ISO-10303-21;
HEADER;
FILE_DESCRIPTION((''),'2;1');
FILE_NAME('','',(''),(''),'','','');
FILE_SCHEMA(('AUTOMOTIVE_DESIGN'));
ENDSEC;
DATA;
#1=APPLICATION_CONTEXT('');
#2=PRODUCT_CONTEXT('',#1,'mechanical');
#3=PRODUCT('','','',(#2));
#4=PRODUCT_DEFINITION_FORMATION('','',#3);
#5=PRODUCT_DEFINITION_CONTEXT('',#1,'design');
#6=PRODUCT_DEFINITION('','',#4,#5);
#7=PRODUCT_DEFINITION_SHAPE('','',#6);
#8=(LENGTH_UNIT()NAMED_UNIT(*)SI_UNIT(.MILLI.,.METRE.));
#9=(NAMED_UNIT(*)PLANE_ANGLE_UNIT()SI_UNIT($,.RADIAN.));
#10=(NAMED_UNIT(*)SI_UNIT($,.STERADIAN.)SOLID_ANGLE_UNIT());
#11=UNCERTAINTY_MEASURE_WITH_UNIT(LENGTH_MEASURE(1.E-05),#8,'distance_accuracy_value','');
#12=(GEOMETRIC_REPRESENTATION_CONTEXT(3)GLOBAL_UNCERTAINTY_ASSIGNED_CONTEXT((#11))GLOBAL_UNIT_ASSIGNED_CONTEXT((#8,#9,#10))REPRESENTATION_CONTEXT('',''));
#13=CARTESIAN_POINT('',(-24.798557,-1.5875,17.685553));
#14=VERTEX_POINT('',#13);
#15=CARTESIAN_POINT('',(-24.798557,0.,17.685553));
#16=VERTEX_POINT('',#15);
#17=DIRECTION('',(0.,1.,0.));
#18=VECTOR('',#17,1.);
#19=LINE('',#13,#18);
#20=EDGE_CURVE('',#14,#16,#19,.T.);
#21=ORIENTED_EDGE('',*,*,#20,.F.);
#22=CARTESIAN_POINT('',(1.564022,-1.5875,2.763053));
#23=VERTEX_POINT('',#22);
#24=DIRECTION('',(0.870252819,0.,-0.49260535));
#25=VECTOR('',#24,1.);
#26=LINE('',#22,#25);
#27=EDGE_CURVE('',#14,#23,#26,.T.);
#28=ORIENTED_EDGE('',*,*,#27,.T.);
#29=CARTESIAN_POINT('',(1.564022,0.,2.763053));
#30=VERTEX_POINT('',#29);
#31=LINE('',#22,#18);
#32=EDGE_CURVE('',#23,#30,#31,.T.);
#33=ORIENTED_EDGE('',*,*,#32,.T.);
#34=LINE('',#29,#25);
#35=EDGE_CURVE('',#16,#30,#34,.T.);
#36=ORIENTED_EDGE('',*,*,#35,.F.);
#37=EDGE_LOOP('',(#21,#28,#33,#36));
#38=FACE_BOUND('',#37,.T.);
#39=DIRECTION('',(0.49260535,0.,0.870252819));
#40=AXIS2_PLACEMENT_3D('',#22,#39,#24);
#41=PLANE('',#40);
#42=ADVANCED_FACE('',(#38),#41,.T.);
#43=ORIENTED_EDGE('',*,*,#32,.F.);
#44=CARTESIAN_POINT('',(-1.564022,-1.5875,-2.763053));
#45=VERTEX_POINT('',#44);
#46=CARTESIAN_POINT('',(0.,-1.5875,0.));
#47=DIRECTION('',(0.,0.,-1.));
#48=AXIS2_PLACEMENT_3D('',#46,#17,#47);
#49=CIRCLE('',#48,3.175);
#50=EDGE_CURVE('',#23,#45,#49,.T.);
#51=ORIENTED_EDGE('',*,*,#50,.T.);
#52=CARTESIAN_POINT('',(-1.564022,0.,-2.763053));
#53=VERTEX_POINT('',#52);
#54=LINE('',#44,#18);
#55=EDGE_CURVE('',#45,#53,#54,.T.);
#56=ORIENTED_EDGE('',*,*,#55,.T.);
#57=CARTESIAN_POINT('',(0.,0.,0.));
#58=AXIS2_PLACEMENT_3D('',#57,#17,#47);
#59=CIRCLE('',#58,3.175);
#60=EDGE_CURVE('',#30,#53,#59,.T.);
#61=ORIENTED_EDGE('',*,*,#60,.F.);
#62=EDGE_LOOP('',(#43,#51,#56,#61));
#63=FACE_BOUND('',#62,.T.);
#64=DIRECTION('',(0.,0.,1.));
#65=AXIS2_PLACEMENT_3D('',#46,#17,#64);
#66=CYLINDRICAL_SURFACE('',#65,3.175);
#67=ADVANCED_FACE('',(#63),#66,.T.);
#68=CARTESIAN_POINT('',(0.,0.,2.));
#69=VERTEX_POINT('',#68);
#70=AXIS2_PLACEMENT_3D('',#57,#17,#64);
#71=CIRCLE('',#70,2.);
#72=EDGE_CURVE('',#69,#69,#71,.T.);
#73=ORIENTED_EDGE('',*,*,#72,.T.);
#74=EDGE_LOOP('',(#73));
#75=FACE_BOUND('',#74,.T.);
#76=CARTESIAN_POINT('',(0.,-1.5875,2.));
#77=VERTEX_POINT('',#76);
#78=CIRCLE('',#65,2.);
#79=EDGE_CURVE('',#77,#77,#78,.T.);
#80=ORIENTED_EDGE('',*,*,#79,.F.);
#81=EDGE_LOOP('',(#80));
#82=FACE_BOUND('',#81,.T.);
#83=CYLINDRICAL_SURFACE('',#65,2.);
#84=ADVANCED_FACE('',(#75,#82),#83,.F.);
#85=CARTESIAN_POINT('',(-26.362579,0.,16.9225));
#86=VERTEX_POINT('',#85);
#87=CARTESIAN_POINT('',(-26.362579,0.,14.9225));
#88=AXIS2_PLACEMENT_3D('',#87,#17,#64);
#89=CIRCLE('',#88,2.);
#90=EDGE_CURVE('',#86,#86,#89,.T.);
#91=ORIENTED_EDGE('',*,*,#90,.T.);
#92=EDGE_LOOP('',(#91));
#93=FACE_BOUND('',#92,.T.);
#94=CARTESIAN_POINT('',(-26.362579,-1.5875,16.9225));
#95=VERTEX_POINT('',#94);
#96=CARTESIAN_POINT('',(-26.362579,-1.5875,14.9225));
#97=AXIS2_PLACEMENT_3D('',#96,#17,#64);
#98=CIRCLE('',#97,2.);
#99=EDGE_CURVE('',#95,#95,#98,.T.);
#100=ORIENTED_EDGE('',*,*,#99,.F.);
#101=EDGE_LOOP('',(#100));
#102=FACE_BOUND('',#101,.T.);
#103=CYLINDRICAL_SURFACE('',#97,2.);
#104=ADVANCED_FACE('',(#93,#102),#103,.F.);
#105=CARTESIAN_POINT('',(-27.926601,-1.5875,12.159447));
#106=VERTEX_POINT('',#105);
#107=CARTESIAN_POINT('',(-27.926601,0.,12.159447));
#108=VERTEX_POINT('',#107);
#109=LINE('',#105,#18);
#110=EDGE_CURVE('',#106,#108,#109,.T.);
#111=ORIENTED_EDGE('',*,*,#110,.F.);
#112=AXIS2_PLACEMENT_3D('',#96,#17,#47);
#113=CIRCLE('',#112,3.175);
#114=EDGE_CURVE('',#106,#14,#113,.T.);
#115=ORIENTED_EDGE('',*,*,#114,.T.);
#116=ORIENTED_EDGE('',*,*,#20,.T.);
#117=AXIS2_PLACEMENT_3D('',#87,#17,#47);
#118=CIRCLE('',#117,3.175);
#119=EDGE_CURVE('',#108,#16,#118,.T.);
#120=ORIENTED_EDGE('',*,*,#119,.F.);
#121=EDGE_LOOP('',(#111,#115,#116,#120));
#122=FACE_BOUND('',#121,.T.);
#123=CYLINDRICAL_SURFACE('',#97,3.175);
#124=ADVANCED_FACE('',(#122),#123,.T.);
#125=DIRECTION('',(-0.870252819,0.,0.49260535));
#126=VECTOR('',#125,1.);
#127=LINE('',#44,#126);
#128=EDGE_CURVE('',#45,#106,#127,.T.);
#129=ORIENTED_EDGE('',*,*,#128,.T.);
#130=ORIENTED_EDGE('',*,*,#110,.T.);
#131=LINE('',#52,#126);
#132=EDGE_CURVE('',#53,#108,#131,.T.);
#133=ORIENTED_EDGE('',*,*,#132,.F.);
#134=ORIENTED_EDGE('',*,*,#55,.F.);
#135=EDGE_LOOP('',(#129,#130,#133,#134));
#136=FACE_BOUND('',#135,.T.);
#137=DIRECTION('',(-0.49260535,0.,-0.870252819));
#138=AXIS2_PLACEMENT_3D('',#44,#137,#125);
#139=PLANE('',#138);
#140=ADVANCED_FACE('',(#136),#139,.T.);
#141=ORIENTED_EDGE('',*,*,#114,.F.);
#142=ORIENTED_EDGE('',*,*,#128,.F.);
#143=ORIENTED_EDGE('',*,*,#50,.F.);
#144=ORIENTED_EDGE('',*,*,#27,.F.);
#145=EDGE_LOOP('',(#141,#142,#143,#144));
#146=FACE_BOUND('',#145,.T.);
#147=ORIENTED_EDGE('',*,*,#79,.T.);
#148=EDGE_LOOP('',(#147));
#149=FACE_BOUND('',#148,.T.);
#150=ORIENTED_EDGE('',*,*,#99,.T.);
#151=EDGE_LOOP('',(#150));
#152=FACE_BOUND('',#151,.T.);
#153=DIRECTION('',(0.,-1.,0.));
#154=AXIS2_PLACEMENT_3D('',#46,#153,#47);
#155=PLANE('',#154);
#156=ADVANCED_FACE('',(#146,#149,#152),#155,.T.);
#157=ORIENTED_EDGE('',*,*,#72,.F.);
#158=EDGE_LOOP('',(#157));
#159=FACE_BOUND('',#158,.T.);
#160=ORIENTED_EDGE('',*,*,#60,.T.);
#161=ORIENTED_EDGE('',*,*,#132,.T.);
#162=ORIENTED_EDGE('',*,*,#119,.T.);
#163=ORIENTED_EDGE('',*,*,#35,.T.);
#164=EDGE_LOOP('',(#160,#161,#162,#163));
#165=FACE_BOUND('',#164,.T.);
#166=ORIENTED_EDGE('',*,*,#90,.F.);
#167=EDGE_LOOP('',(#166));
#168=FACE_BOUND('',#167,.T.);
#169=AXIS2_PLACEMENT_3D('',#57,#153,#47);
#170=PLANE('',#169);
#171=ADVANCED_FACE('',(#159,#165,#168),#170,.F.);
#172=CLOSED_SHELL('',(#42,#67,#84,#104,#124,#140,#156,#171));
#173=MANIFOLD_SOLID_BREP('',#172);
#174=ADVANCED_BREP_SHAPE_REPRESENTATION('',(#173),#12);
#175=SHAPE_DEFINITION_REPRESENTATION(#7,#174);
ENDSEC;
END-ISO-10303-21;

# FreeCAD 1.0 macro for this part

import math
import FreeCAD as App
import Part
import Sketcher

V = App.Vector
Q = App.Units.Quantity

doc = App.newDocument("Part")
body = doc.addObject("PartDesign::Body", "Body")

# Sketch on XZ plane
sketch1 = body.newObject("Sketcher::SketchObject", "Sketch")
sketch1.AttachmentSupport = (doc.getObject("XZ_Plane"), [""])
sketch1.MapMode = "FlatFace"
sketch1.addGeometry([
    Part.LineSegment(V(-24.8, 17.7, 0), V(1.6, 2.8, 0)),  # 0
    Part.ArcOfCircle(Part.Circle(V(0, 0, 0), V(0, 0, 1), 3.2), math.radians(-120), math.radians(60)),  # 1
    Part.LineSegment(V(-1.6, -2.8, 0), V(-27.9, 12.2, 0)),  # 2
    Part.ArcOfCircle(Part.Circle(V(-26.4, 14.9, 0), V(0, 0, 1), 3.2), math.radians(60), math.radians(240)),  # 3
    Part.Circle(V(-26.4, 14.9, 0), V(0, 0, 1), 2),  # 4
    Part.Circle(V(0, 0, 0), V(0, 0, 1), 2),  # 5
], False)
sketch1.addConstraint([
    Sketcher.Constraint("Tangent", 0, 2, 1, 2),
    Sketcher.Constraint("Tangent", 1, 1, 2, 1),
    Sketcher.Constraint("Tangent", 2, 2, 3, 2),
    Sketcher.Constraint("Tangent", 3, 1, 0, 1),
    Sketcher.Constraint("Coincident", 1, 3, -1, 1),
    Sketcher.Constraint("Coincident", 5, 3, -1, 1),
    Sketcher.Constraint("Coincident", 4, 3, 3, 3),
    Sketcher.Constraint("Equal", 1, 3),
    Sketcher.Constraint("Equal", 4, 5),
    Sketcher.Constraint("Radius", 1, Q("0.125 in")),
    Sketcher.Constraint("Diameter", 4, Q("4 mm")),
    Sketcher.Constraint("DistanceY", -1, 1, 3, 3, Q("0.5875 in")),
    Sketcher.Constraint("DistanceX", 2, 2, -1, 1, Q("27.926601 mm")),
])
pad1 = body.newObject("PartDesign::Pad", "Pad")
pad1.Profile = sketch1
pad1.Length = Q("0.0625 in")

doc.recompute()
